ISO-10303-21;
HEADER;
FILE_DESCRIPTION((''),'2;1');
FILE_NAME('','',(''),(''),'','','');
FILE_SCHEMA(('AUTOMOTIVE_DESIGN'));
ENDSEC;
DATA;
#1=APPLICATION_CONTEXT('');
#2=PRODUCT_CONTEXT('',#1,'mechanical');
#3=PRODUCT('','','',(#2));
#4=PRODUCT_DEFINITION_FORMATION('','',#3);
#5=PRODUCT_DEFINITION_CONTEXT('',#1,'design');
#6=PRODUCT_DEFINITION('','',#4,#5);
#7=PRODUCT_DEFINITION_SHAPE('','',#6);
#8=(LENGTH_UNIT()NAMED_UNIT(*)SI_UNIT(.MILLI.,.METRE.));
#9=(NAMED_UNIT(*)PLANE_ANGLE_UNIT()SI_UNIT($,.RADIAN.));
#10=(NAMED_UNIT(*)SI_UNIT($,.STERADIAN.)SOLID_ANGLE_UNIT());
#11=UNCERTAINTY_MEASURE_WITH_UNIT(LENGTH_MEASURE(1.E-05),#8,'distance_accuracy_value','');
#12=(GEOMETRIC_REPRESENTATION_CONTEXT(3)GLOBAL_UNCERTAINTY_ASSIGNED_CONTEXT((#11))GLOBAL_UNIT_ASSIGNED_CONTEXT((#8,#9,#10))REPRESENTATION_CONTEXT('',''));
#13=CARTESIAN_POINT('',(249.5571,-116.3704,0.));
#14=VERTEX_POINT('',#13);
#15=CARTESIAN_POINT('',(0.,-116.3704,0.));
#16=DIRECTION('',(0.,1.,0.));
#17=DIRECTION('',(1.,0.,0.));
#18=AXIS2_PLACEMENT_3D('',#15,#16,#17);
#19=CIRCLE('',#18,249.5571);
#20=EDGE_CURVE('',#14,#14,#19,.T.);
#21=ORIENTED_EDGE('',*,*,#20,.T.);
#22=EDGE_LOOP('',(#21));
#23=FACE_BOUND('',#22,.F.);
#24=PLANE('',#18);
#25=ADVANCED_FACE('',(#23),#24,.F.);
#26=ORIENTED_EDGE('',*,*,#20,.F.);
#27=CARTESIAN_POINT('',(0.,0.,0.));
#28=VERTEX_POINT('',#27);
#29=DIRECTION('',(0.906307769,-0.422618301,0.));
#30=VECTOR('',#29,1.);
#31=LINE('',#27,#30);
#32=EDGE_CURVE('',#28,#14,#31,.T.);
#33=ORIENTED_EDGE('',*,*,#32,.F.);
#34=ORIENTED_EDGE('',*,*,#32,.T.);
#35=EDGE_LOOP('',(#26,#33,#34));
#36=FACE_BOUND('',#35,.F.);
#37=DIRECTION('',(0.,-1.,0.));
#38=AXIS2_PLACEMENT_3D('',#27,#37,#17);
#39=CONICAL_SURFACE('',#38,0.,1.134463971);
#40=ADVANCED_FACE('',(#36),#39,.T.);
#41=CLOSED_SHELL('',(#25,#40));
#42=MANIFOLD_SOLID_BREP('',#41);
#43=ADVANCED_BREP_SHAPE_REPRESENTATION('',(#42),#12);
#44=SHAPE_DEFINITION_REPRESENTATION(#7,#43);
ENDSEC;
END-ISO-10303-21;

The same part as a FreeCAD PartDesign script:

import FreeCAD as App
import Part
import Sketcher

V = App.Vector
Q = App.Units.Quantity

doc = App.newDocument("Part")
params = doc.addObject("Spreadsheet::Sheet", "Params")
for row, (alias, value) in enumerate([
    ("revolution_angle", "360 deg"),
], start=1):
    params.set(f"A{row}", alias)
    params.set(f"B{row}", "=" + value)
    params.setAlias(f"B{row}", alias)

body = doc.addObject("PartDesign::Body", "Body")

# Sketch on XY plane
sketch1 = body.newObject("Sketcher::SketchObject", "Sketch")
sketch1.AttachmentSupport = (doc.getObject("XY_Plane"), [""])
sketch1.MapMode = "FlatFace"
sketch1.addGeometry(Part.LineSegment(V(250, -116, 0), V(0, 0, 0)), False)
sketch1.addGeometry(Part.LineSegment(V(0, 0, 0), V(0, -116, 0)), False)
sketch1.addGeometry(Part.LineSegment(V(0, -116, 0), V(250, -116, 0)), False)
sketch1.addConstraint(Sketcher.Constraint("Coincident", 0, 2, 1, 1))
sketch1.addConstraint(Sketcher.Constraint("Coincident", 1, 2, 2, 1))
sketch1.addConstraint(Sketcher.Constraint("Coincident", 2, 2, 0, 1))
sketch1.addConstraint(Sketcher.Constraint("Vertical", 1))
sketch1.addConstraint(Sketcher.Constraint("Horizontal", 2))
sketch1.addConstraint(Sketcher.Constraint("Coincident", 0, 2, -1, 1))
sketch1.addConstraint(Sketcher.Constraint("Angle", 0, Q("155 deg")))
sketch1.addConstraint(Sketcher.Constraint("DistanceX", 2, 1, 2, 2, Q("249.557 mm")))
revolution = body.newObject("PartDesign::Revolution", "Revolution")
revolution.Profile = sketch1
revolution.ReferenceAxis = (sketch1, ["V_Axis"])
revolution.setExpression("Angle", "Params.revolution_angle")

doc.recompute()
